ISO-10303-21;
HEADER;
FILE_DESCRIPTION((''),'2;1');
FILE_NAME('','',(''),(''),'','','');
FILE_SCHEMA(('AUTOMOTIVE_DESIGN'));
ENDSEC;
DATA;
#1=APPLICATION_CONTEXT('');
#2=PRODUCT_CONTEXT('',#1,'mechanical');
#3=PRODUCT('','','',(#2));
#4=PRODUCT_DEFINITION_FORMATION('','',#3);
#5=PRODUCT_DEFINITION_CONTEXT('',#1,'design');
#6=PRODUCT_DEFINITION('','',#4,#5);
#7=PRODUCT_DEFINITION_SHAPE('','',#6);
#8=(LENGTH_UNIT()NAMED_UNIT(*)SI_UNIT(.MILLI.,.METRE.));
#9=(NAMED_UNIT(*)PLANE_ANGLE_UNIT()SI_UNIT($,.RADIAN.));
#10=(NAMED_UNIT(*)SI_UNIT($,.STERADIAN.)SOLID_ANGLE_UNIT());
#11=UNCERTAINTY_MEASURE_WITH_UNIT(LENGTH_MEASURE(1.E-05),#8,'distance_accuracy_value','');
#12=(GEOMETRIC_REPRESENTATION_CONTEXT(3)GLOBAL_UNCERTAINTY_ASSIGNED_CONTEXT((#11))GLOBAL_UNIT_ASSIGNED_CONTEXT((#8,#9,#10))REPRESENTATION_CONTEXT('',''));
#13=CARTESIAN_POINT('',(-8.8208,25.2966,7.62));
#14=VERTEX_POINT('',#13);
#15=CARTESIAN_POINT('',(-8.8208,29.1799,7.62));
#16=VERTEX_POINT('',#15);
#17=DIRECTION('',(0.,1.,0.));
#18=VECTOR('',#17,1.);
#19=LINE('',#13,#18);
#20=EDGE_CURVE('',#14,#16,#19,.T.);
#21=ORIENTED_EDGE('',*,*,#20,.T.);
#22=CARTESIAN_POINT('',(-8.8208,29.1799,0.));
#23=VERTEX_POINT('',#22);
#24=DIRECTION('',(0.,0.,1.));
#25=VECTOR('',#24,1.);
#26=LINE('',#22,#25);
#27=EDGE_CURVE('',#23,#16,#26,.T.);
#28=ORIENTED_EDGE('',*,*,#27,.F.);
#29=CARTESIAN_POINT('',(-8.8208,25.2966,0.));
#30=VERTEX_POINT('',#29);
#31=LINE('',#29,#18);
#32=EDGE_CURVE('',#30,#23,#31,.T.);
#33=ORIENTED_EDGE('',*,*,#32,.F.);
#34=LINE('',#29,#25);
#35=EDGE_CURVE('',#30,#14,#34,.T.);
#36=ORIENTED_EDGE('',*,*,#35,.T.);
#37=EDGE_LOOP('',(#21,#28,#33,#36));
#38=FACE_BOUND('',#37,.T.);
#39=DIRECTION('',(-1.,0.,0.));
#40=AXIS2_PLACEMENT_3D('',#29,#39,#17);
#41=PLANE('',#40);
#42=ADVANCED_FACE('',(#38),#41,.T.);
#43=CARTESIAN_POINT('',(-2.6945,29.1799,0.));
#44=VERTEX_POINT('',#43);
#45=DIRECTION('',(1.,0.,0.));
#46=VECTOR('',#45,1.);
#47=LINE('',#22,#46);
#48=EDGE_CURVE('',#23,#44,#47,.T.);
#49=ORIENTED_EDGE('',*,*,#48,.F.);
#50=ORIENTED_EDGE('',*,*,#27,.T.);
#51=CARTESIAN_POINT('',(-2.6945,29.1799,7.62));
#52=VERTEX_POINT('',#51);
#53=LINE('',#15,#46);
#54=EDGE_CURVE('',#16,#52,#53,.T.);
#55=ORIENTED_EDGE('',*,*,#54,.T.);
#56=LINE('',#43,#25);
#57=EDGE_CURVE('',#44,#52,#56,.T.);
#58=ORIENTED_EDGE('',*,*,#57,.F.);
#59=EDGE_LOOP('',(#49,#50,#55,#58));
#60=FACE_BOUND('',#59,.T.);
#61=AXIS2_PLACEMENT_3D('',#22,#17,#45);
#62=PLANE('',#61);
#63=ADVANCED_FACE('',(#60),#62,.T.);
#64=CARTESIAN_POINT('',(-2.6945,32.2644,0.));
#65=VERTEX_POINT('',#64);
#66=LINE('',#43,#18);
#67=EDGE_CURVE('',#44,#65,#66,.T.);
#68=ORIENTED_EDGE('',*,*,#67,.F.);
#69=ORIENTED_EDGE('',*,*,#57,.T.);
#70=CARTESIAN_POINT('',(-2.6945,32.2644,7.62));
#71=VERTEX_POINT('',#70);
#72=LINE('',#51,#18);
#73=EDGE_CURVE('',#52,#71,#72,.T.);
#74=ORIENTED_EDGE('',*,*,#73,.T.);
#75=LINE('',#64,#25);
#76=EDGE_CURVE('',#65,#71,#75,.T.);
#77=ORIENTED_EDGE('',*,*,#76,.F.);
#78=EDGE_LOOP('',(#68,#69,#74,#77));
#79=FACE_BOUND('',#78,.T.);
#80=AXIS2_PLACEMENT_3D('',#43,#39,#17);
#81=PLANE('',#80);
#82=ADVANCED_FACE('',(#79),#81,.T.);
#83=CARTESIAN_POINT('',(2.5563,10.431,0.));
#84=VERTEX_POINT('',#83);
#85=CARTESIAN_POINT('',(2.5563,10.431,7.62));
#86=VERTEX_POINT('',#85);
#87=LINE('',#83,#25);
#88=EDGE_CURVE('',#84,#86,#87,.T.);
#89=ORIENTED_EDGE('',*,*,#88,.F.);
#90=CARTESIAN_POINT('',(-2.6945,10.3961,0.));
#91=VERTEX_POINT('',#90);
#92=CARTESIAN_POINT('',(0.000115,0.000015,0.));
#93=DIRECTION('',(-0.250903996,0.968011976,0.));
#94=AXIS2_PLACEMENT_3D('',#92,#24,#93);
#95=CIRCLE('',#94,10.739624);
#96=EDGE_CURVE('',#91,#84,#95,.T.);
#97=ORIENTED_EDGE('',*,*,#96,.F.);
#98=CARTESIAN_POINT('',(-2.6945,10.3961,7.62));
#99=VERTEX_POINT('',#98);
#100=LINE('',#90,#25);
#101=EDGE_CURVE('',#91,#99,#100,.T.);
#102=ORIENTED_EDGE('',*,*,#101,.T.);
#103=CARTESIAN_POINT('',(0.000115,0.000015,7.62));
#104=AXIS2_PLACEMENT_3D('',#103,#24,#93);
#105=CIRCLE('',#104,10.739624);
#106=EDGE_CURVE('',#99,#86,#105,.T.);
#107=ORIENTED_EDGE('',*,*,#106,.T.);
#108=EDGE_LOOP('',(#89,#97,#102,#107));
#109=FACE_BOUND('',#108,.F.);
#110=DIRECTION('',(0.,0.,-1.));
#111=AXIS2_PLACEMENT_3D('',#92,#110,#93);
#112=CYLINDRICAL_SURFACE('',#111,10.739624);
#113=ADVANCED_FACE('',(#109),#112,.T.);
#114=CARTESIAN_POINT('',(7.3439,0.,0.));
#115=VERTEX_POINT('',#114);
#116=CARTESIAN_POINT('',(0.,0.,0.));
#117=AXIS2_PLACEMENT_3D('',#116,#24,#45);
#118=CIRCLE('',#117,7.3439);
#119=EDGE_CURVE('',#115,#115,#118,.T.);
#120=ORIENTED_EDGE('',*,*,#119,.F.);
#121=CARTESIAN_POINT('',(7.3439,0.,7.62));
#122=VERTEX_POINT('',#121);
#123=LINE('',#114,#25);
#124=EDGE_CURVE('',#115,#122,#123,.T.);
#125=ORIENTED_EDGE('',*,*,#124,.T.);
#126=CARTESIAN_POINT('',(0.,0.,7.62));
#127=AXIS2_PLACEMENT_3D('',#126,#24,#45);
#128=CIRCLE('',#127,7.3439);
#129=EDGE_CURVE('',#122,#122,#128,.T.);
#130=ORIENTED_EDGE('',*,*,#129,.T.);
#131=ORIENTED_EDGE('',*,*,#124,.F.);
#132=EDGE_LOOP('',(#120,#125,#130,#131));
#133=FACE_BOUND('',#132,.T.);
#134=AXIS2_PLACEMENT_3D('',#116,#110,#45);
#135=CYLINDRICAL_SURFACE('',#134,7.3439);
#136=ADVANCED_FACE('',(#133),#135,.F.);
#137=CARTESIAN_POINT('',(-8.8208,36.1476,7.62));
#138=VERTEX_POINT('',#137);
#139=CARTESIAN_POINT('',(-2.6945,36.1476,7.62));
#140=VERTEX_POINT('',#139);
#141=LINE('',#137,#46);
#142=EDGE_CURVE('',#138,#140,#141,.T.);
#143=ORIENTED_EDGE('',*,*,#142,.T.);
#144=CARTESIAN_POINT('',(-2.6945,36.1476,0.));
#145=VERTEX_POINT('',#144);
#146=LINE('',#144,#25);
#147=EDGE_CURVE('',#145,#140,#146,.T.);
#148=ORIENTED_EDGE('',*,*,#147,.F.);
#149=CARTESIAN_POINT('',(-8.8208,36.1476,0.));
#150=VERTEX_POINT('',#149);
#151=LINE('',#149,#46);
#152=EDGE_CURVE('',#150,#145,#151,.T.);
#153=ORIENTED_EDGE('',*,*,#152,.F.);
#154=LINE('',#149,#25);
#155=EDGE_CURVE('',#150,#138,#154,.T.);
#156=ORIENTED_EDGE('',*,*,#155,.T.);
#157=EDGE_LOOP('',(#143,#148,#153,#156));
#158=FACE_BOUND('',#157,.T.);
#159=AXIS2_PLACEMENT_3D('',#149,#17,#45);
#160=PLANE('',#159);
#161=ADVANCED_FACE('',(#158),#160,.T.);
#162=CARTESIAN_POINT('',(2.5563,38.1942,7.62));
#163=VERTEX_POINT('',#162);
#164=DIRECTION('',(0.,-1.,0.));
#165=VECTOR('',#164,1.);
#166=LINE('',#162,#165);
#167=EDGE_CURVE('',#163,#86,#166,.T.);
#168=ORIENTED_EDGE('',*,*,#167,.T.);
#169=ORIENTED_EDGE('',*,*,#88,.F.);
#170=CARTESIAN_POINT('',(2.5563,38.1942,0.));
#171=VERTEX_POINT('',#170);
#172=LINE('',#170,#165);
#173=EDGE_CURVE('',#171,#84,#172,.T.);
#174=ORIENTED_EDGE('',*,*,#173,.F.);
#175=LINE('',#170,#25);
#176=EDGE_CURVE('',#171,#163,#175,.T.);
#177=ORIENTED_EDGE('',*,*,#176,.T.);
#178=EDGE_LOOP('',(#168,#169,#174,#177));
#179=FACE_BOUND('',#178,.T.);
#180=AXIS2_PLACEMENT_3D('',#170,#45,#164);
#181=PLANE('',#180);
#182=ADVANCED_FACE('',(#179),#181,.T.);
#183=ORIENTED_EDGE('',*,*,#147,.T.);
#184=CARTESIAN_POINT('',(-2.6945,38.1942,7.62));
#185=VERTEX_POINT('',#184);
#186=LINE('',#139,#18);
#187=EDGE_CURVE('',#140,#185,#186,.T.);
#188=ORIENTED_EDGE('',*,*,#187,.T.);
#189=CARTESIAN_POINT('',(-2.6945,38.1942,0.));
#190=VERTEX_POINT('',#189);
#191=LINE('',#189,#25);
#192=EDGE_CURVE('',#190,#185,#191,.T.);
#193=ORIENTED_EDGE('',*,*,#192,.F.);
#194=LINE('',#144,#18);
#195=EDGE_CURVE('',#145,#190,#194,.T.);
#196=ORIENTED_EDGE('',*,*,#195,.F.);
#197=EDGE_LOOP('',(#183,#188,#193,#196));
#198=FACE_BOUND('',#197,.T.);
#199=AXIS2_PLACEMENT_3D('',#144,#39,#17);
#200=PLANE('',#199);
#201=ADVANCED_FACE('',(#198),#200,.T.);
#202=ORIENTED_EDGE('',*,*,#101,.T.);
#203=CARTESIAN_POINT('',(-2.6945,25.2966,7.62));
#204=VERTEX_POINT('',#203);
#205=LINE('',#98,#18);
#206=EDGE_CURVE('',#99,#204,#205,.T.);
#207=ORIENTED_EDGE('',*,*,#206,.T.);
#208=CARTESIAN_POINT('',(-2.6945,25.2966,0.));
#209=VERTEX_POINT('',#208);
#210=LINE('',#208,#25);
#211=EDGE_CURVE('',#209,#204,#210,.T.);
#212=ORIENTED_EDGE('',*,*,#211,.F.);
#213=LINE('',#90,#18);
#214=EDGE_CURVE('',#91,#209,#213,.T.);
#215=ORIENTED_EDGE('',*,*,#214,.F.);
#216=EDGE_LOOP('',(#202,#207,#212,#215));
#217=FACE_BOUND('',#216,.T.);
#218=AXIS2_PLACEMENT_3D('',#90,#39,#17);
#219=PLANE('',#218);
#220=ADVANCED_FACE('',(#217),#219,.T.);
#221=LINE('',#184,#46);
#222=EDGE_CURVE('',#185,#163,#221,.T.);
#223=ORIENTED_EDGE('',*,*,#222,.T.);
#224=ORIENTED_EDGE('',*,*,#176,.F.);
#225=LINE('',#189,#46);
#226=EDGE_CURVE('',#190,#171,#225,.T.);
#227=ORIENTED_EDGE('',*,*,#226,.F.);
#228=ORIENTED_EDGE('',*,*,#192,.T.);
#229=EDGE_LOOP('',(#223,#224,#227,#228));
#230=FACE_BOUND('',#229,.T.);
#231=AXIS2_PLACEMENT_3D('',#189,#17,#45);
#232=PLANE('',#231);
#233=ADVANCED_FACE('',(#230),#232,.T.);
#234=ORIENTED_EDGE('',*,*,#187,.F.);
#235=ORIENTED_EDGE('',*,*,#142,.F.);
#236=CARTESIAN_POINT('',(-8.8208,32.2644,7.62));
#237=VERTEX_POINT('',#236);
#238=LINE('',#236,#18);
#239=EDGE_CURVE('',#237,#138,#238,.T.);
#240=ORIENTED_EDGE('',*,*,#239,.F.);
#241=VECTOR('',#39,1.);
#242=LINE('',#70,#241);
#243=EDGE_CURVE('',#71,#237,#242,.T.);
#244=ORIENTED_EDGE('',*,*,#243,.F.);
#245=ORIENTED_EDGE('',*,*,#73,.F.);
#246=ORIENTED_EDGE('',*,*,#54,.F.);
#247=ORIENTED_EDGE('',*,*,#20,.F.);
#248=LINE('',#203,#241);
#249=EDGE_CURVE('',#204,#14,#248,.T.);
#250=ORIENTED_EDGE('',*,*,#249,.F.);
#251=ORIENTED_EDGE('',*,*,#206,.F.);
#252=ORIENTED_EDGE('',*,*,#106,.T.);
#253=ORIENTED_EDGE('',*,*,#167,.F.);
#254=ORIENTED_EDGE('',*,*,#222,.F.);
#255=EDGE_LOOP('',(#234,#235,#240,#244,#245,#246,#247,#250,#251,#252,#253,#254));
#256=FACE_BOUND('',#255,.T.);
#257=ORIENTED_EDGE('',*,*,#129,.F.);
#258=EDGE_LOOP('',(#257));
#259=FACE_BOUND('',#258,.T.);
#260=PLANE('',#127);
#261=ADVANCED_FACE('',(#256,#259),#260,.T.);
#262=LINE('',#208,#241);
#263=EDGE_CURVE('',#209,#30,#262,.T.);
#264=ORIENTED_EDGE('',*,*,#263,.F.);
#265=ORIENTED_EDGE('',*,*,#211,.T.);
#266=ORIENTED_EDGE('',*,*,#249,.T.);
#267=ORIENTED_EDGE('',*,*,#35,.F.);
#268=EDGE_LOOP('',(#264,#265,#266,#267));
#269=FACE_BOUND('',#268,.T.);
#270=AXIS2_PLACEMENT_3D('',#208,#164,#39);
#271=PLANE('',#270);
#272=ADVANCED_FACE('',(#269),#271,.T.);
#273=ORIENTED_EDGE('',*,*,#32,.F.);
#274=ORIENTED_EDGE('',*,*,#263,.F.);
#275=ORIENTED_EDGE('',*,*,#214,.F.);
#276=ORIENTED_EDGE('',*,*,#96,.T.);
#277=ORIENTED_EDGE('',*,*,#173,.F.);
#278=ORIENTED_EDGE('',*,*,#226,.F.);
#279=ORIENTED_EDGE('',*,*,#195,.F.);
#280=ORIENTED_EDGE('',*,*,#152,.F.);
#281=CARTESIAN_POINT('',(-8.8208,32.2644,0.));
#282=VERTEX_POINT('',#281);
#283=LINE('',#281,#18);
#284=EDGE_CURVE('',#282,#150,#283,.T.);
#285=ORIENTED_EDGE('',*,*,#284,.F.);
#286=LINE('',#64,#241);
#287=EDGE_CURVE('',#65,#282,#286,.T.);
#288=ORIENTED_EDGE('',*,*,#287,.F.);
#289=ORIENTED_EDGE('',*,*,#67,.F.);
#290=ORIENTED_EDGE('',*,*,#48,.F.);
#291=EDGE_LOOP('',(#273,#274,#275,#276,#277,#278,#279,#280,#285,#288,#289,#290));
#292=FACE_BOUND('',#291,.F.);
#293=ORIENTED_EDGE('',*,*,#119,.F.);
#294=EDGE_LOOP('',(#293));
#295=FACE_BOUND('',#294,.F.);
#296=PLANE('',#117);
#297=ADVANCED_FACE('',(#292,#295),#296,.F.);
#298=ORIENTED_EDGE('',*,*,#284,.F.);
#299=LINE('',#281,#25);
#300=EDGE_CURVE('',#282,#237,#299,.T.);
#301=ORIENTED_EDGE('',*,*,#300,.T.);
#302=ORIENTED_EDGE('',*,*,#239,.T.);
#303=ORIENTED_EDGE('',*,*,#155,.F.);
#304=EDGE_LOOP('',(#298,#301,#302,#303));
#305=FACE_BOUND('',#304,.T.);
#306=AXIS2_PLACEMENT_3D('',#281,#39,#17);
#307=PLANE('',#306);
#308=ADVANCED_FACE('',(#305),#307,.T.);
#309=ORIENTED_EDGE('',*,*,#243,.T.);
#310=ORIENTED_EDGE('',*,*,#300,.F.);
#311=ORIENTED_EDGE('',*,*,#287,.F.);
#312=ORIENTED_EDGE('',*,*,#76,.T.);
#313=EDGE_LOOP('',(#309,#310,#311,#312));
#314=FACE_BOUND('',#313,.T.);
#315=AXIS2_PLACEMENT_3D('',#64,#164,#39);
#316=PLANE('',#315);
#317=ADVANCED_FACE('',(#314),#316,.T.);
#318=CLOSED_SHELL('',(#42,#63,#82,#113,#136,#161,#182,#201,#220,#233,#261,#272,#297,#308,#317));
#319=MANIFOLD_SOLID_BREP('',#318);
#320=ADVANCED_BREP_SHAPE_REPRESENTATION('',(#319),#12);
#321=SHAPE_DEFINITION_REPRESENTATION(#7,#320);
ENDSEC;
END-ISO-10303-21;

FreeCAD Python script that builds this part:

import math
import FreeCAD as App
import Part
import Sketcher

V = App.Vector
Q = App.Units.Quantity

doc = App.newDocument("Part")
params = doc.addObject("Spreadsheet::Sheet", "Params")
for row, (alias, value) in enumerate([
    ("pad1_length", "0.3 in"),
], start=1):
    params.set(f"A{row}", alias)
    params.set(f"B{row}", "=" + value)
    params.setAlias(f"B{row}", alias)

body = doc.addObject("PartDesign::Body", "Body")

sketch1 = doc.addObject("Sketcher::SketchObject", "Sketch")
body.addObject(sketch1)
sketch1.AttachmentSupport = (doc.XY_Plane, [""])
sketch1.MapMode = "FlatFace"
sketch1.addGeometry([
    Part.LineSegment(V(-2.7, 25.3, 0), V(-2.7, 10.4, 0)),
    Part.ArcOfCircle(Part.Circle(V(0, 0, 0), V(0, 0, 1), 10.7), math.radians(105), math.radians(436)),
    Part.LineSegment(V(2.6, 10.4, 0), V(2.6, 38.2, 0)),
    Part.LineSegment(V(2.6, 38.2, 0), V(-2.7, 38.2, 0)),
    Part.LineSegment(V(-2.7, 38.2, 0), V(-2.7, 36.1, 0)),
    Part.LineSegment(V(-2.7, 36.1, 0), V(-8.8, 36.1, 0)),
    Part.LineSegment(V(-8.8, 36.1, 0), V(-8.8, 32.3, 0)),
    Part.LineSegment(V(-8.8, 32.3, 0), V(-2.7, 32.3, 0)),
    Part.LineSegment(V(-2.7, 32.3, 0), V(-2.7, 29.2, 0)),
    Part.LineSegment(V(-2.7, 29.2, 0), V(-8.8, 29.2, 0)),
    Part.LineSegment(V(-8.8, 29.2, 0), V(-8.8, 25.3, 0)),
    Part.LineSegment(V(-8.8, 25.3, 0), V(-2.7, 25.3, 0)),
    Part.Circle(V(0, 0, 0), V(0, 0, 1), 7.3),
], False)
sketch1.addConstraint([
    Sketcher.Constraint("Coincident", 0, 2, 1, 1),
    Sketcher.Constraint("Coincident", 1, 2, 2, 1),
    Sketcher.Constraint("Coincident", 2, 2, 3, 1),
    Sketcher.Constraint("Coincident", 3, 2, 4, 1),
    Sketcher.Constraint("Coincident", 4, 2, 5, 1),
    Sketcher.Constraint("Coincident", 5, 2, 6, 1),
    Sketcher.Constraint("Coincident", 6, 2, 7, 1),
    Sketcher.Constraint("Coincident", 7, 2, 8, 1),
    Sketcher.Constraint("Coincident", 8, 2, 9, 1),
    Sketcher.Constraint("Coincident", 9, 2, 10, 1),
    Sketcher.Constraint("Coincident", 10, 2, 11, 1),
    Sketcher.Constraint("Coincident", 11, 2, 0, 1),
    Sketcher.Constraint("Vertical", 0),
    Sketcher.Constraint("Vertical", 2),
    Sketcher.Constraint("Horizontal", 3),
    Sketcher.Constraint("Vertical", 4),
    Sketcher.Constraint("Horizontal", 5),
    Sketcher.Constraint("Vertical", 6),
    Sketcher.Constraint("Horizontal", 7),
    Sketcher.Constraint("Vertical", 8),
    Sketcher.Constraint("Horizontal", 9),
    Sketcher.Constraint("Vertical", 10),
    Sketcher.Constraint("Horizontal", 11),
    Sketcher.Constraint("Coincident", 1, 3, -1, 1),
    Sketcher.Constraint("Coincident", 12, 3, -1, 1),
    Sketcher.Constraint("Vertical", 0, 2, 3, 2),
    Sketcher.Constraint("Vertical", 4, 2, 7, 2),
    Sketcher.Constraint("Vertical", 6, 2, 9, 2),
    Sketcher.Constraint("Equal", 6, 10),
    Sketcher.Constraint("Diameter", 12, 14.6878),
    Sketcher.Constraint("Radius", 1, 10.7396),
    Sketcher.Constraint("DistanceX", 5, 2, 5, 1, Q("0.2412 in")),
    Sketcher.Constraint("DistanceX", 3, 2, 3, 1, 5.2508),
    Sketcher.Constraint("DistanceY", 0, 2, 0, 1, 14.9005),
    Sketcher.Constraint("DistanceY", 2, 1, 2, 2, 27.7632),
    Sketcher.Constraint("DistanceY", 4, 2, 4, 1, 2.0466),
    Sketcher.Constraint("DistanceY", 6, 2, 6, 1, 3.8832),
    Sketcher.Constraint("DistanceY", 8, 2, 8, 1, 3.0845),
])
pad1 = doc.addObject("PartDesign::Pad", "Pad")
body.addObject(pad1)
pad1.Profile = sketch1
pad1.setExpression("Length", "Params.pad1_length")

doc.recompute()
